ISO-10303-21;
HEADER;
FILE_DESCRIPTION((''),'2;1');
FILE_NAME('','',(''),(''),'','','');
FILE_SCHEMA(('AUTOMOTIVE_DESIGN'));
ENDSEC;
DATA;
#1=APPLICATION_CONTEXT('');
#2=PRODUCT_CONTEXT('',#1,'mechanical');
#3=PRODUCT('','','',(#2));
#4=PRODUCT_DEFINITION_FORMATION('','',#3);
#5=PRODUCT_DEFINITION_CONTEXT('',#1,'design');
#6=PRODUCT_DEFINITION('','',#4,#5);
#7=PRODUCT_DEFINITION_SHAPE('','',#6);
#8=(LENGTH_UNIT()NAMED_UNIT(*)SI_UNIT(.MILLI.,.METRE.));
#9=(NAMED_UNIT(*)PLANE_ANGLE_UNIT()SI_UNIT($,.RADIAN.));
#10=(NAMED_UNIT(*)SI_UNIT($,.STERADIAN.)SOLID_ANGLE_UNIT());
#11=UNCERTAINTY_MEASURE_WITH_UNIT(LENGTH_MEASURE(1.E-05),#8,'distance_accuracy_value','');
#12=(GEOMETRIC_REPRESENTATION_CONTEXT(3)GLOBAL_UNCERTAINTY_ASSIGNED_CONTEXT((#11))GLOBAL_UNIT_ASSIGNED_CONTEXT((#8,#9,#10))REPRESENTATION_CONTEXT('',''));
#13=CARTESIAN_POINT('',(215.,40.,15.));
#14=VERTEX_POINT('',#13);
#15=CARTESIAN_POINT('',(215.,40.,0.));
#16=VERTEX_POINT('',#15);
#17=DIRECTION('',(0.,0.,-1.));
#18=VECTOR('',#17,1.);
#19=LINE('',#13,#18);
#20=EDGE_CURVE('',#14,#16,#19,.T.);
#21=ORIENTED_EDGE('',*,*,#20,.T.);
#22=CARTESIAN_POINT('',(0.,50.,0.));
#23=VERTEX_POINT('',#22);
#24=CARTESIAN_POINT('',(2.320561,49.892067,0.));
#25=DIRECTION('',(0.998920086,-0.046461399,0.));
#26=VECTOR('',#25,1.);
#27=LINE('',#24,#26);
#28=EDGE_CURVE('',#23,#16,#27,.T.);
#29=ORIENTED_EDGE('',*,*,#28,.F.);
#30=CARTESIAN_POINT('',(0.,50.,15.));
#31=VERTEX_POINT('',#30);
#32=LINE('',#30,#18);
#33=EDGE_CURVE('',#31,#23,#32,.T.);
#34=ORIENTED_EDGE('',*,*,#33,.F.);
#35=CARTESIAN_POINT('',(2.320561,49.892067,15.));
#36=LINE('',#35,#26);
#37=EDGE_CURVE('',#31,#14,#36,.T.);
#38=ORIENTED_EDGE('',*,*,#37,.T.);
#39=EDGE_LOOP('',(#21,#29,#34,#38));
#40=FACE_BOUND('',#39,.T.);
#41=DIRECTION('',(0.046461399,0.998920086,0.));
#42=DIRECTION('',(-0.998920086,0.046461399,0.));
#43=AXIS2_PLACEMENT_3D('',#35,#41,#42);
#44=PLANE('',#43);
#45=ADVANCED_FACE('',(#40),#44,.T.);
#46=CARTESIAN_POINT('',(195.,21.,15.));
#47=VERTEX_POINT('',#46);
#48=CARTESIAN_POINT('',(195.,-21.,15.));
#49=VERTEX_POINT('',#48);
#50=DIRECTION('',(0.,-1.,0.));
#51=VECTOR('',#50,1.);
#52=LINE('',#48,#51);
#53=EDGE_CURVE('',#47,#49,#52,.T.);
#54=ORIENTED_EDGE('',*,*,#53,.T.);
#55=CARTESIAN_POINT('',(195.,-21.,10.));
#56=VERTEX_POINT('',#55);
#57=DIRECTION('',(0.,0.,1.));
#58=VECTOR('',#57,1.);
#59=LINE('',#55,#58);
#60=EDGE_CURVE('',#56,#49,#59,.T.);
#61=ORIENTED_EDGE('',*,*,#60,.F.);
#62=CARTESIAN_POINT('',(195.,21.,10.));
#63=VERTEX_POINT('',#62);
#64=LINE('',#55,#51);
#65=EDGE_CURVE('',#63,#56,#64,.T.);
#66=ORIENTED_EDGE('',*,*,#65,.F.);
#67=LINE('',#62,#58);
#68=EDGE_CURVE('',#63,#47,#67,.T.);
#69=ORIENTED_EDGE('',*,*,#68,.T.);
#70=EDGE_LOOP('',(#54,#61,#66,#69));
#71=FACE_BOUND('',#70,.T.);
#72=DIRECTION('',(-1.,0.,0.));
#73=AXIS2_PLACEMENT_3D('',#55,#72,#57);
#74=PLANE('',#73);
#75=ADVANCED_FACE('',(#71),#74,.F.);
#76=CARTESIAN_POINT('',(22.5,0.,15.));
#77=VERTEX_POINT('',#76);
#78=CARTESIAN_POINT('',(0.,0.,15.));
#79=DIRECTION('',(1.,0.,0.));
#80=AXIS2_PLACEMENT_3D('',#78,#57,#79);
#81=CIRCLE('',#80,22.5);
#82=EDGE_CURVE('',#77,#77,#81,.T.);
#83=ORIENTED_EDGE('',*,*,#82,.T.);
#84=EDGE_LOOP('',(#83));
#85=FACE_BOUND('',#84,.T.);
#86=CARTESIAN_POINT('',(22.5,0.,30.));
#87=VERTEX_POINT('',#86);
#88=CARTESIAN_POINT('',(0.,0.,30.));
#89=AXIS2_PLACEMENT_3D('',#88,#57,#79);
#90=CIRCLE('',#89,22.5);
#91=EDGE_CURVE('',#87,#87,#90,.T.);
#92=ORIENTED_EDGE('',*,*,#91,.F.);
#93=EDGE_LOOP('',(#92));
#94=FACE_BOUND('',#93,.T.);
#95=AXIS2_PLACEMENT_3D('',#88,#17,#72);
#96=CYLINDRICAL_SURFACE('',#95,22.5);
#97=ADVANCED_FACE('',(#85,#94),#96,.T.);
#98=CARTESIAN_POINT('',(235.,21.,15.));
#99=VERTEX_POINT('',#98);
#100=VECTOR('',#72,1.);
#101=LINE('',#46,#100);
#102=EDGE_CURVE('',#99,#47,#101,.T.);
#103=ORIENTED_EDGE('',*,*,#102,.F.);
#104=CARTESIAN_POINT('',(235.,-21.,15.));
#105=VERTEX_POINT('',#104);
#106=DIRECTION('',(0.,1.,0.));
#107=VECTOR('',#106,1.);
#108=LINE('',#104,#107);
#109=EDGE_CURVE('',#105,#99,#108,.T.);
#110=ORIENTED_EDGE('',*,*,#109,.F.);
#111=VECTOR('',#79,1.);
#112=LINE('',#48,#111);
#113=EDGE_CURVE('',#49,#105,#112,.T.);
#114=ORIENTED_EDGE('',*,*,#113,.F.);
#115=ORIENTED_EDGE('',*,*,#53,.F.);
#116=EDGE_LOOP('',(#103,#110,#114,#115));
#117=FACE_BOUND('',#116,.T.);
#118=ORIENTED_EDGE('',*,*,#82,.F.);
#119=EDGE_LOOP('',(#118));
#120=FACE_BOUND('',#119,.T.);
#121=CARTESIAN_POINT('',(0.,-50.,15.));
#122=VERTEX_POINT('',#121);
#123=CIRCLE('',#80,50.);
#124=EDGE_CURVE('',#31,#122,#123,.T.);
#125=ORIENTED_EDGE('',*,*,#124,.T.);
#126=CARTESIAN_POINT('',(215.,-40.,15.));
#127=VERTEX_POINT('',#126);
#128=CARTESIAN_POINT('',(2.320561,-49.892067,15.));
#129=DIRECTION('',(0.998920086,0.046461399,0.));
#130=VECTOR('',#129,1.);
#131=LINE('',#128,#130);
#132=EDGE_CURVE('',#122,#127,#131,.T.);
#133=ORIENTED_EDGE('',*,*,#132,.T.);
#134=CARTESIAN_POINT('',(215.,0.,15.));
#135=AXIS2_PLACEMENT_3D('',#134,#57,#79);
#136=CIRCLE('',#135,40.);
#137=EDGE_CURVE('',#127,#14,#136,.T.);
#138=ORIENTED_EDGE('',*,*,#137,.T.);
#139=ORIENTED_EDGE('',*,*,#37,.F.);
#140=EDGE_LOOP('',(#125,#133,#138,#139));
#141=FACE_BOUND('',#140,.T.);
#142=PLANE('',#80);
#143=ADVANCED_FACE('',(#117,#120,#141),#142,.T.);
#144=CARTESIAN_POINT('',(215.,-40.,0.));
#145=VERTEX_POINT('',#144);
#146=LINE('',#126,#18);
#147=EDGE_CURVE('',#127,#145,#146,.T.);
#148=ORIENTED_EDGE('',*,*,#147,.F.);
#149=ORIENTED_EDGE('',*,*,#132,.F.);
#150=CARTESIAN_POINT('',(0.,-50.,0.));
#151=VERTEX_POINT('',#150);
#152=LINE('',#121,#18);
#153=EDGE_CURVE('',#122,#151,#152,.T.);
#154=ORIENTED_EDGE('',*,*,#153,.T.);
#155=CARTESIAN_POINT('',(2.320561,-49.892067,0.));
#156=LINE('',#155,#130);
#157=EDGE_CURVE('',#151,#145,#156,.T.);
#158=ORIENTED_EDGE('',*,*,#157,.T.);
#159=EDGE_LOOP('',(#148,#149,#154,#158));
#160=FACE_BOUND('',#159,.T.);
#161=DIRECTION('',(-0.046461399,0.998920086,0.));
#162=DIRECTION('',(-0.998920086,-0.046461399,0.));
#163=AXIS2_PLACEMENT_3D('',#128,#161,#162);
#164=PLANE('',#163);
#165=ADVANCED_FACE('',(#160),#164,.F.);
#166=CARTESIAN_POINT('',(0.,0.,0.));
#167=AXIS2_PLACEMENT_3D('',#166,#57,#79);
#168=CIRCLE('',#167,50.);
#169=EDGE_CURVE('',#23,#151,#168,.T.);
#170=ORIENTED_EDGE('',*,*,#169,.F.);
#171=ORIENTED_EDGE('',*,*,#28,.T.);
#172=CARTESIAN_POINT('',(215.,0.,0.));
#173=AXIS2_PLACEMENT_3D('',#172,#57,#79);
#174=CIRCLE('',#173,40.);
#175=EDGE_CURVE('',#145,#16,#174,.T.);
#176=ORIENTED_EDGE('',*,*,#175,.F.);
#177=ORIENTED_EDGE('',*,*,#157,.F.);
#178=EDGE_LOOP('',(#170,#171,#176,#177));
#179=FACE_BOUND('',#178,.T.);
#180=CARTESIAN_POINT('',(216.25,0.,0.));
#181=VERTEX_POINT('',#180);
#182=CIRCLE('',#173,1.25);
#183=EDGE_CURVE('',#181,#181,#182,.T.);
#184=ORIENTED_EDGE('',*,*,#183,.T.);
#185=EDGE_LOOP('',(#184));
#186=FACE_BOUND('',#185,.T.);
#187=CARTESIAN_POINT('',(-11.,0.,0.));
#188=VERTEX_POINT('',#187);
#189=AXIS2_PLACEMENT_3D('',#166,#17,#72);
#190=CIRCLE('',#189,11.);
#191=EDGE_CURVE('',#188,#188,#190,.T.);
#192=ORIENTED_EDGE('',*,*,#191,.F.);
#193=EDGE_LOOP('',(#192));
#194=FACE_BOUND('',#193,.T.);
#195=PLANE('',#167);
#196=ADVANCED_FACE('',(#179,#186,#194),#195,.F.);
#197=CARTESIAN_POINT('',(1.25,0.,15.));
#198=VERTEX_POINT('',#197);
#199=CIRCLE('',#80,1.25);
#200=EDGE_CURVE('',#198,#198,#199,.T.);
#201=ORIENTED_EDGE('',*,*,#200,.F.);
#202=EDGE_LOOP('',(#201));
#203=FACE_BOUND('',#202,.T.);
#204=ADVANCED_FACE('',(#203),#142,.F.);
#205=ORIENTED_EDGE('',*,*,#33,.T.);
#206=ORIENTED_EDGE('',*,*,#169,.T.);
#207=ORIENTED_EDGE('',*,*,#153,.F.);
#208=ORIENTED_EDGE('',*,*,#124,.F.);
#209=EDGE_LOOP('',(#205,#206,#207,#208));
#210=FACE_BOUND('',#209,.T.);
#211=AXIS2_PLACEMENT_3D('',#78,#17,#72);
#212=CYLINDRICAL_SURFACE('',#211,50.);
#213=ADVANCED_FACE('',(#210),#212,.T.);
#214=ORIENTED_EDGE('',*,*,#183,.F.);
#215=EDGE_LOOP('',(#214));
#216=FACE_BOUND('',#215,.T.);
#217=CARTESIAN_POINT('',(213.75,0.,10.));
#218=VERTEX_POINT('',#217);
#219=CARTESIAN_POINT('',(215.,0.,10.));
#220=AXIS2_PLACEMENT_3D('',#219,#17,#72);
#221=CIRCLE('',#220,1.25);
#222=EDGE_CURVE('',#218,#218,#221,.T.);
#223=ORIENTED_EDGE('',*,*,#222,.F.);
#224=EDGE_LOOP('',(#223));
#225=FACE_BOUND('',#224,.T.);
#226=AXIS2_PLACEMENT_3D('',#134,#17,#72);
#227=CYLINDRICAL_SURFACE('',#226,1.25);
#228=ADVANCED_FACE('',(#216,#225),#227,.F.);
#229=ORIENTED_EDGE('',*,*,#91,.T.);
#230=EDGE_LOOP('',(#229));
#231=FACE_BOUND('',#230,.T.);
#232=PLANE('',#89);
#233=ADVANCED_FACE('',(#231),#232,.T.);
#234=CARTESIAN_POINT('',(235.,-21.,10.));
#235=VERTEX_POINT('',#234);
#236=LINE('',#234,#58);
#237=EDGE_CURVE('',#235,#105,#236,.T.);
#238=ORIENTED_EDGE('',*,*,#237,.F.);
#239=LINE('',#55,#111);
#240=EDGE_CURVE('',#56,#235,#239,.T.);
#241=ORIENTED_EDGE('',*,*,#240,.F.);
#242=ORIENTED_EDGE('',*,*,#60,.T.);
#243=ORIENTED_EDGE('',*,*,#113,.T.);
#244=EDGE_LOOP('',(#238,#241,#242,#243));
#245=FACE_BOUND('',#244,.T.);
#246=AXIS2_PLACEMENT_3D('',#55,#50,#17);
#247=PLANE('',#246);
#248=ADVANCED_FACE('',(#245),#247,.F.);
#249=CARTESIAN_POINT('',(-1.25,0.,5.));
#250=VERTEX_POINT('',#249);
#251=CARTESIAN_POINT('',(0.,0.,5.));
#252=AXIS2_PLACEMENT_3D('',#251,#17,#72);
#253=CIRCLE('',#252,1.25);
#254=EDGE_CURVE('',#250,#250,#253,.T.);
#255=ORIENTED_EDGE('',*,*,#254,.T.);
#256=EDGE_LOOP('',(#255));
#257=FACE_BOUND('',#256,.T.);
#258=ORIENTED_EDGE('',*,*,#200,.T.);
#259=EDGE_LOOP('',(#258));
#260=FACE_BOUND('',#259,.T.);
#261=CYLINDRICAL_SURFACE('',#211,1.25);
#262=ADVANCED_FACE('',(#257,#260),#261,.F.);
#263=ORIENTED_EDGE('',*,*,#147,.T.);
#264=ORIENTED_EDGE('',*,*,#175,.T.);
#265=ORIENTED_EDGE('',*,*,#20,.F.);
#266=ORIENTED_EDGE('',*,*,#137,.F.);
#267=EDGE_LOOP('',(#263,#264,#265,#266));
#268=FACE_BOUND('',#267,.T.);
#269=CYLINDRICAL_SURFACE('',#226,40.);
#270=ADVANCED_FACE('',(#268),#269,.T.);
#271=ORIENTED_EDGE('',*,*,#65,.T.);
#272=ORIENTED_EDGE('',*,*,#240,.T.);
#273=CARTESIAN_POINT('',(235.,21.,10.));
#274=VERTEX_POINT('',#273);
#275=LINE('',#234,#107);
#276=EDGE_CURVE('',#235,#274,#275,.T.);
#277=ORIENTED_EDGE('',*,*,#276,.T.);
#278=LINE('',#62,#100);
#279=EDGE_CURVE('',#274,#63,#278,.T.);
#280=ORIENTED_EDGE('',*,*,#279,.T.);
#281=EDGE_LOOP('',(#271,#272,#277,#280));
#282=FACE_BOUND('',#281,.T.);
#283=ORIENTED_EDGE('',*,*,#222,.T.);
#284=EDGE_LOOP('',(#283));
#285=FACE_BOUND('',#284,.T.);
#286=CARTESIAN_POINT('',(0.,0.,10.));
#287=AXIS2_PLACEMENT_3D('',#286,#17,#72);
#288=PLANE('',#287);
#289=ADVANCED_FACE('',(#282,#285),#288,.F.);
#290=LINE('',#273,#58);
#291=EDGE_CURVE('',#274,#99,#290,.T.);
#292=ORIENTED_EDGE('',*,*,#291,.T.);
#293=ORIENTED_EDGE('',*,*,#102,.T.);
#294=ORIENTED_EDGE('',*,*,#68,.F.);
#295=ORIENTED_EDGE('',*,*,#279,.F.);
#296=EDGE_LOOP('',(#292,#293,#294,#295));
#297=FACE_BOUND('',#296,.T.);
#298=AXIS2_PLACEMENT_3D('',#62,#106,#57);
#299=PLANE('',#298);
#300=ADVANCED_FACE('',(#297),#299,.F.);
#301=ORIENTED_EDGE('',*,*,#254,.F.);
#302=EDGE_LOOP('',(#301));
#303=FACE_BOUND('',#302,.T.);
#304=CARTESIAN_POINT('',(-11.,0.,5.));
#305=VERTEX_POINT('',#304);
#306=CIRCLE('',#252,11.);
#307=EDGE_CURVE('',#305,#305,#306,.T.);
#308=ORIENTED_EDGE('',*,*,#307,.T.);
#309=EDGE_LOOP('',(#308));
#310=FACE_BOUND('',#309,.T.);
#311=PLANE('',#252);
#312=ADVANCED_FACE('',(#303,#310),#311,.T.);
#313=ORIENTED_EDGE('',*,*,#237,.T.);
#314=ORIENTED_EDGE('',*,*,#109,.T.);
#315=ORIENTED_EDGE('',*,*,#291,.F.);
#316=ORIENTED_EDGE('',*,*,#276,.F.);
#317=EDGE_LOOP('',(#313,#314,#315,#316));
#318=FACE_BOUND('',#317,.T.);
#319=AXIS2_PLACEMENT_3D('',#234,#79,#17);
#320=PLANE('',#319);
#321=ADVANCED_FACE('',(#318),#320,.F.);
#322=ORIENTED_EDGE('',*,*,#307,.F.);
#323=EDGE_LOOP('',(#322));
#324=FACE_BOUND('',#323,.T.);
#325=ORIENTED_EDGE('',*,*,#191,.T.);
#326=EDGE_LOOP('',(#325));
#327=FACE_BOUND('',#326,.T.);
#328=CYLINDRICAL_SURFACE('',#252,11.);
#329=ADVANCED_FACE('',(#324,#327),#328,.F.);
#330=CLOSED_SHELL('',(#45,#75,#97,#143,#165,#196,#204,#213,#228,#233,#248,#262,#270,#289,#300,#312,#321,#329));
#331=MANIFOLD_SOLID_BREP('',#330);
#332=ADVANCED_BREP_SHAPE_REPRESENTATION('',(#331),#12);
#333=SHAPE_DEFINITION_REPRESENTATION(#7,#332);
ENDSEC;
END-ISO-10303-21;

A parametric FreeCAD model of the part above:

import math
import FreeCAD as App
import Part
import Sketcher

V = App.Vector
Q = App.Units.Quantity

doc = App.newDocument("Part")
body = doc.addObject("PartDesign::Body", "Body")

# Sketch on XY plane
sketch1 = doc.addObject("Sketcher::SketchObject", "Sketch")
body.addObject(sketch1)
sketch1.AttachmentSupport = (doc.XY_Plane, [""])
sketch1.MapMode = "FlatFace"
sketch1.addGeometry(Part.LineSegment(V(0, -50, 0), V(215, -40, 0)), False)
sketch1.addGeometry(Part.ArcOfCircle(Part.Circle(V(215, 0, 0), V(0, 0, 1), 40), math.radians(-90), math.radians(90)), False)
sketch1.addGeometry(Part.LineSegment(V(215, 40, 0), V(0, 50, 0)), False)
sketch1.addGeometry(Part.ArcOfCircle(Part.Circle(V(0, 0, 0), V(0, 0, 1), 50), math.radians(90), math.radians(270)), False)
sketch1.addGeometry(Part.Circle(V(0, 0, 0), V(0, 0, 1), 1.2), False)
sketch1.addGeometry(Part.Circle(V(215, 0, 0), V(0, 0, 1), 1.2), False)
sketch1.addConstraint(Sketcher.Constraint("Coincident", 0, 2, 1, 1))
sketch1.addConstraint(Sketcher.Constraint("Coincident", 1, 2, 2, 1))
sketch1.addConstraint(Sketcher.Constraint("Coincident", 2, 2, 3, 1))
sketch1.addConstraint(Sketcher.Constraint("Coincident", 3, 2, 0, 1))
sketch1.addConstraint(Sketcher.Constraint("Coincident", 3, 3, -1, 1))
sketch1.addConstraint(Sketcher.Constraint("Coincident", 4, 3, -1, 1))
sketch1.addConstraint(Sketcher.Constraint("Coincident", 5, 3, 1, 3))
sketch1.addConstraint(Sketcher.Constraint("Equal", 4, 5))
sketch1.addConstraint(Sketcher.Constraint("Symmetric", 0, 2, 1, 2, -1))
sketch1.addConstraint(Sketcher.Constraint("PointOnObject", 2, 2, -2))
sketch1.addConstraint(Sketcher.Constraint("PointOnObject", 3, 2, -2))
sketch1.addConstraint(Sketcher.Constraint("Vertical", 5, 3, 0, 2))
sketch1.addConstraint(Sketcher.Constraint("Radius", 1, Q("40 mm")))
sketch1.addConstraint(Sketcher.Constraint("Radius", 3, Q("50 mm")))
sketch1.addConstraint(Sketcher.Constraint("Diameter", 4, Q("2.5 mm")))
sketch1.addConstraint(Sketcher.Constraint("DistanceX", -1, 1, 1, 3, Q("215 mm")))
pad1 = doc.addObject("PartDesign::Pad", "Pad")
body.addObject(pad1)
pad1.Profile = sketch1
pad1.Length = 15

# Sketch on XY plane
sketch2 = doc.addObject("Sketcher::SketchObject", "Sketch001")
body.addObject(sketch2)
sketch2.AttachmentSupport = (doc.XY_Plane, [""])
sketch2.MapMode = "FlatFace"
sketch2.AttachmentOffset = App.Placement(V(0, 0, 15), App.Rotation())
sketch2.addGeometry(Part.Circle(V(0, 0, 0), V(0, 0, 1), 22), False)
sketch2.addConstraint(Sketcher.Constraint("Coincident", 0, 3, -1, 1))
sketch2.addConstraint(Sketcher.Constraint("Diameter", 0, Q("45 mm")))
pad2 = doc.addObject("PartDesign::Pad", "Pad001")
body.addObject(pad2)
pad2.Profile = sketch2
pad2.Length = 15

# Sketch on XY plane
sketch3 = doc.addObject("Sketcher::SketchObject", "Sketch002")
body.addObject(sketch3)
sketch3.AttachmentSupport = (doc.XY_Plane, [""])
sketch3.MapMode = "FlatFace"
sketch3.addGeometry(Part.Circle(V(0, 0, 0), V(0, 0, 1), 11), False)
sketch3.addConstraint(Sketcher.Constraint("Coincident", 0, 3, -1, 1))
sketch3.addConstraint(Sketcher.Constraint("Diameter", 0, Q("22 mm")))
pocket1 = doc.addObject("PartDesign::Pocket", "Pocket")
body.addObject(pocket1)
pocket1.Profile = sketch3
pocket1.Length = 5
pocket1.Reversed = True

# Sketch on XY plane
sketch4 = doc.addObject("Sketcher::SketchObject", "Sketch003")
body.addObject(sketch4)
sketch4.AttachmentSupport = (doc.XY_Plane, [""])
sketch4.MapMode = "FlatFace"
sketch4.AttachmentOffset = App.Placement(V(0, 0, 15), App.Rotation())
sketch4.addGeometry(Part.LineSegment(V(195, 21, 0), V(195, -21, 0)), False)
sketch4.addGeometry(Part.LineSegment(V(195, -21, 0), V(235, -21, 0)), False)
sketch4.addGeometry(Part.LineSegment(V(235, -21, 0), V(235, 21, 0)), False)
sketch4.addGeometry(Part.LineSegment(V(235, 21, 0), V(195, 21, 0)), False)
sketch4.addConstraint(Sketcher.Constraint("Coincident", 0, 2, 1, 1))
sketch4.addConstraint(Sketcher.Constraint("Coincident", 1, 2, 2, 1))
sketch4.addConstraint(Sketcher.Constraint("Coincident", 2, 2, 3, 1))
sketch4.addConstraint(Sketcher.Constraint("Coincident", 3, 2, 0, 1))
sketch4.addConstraint(Sketcher.Constraint("Vertical", 0))
sketch4.addConstraint(Sketcher.Constraint("Horizontal", 1))
sketch4.addConstraint(Sketcher.Constraint("Vertical", 2))
sketch4.addConstraint(Sketcher.Constraint("Horizontal", 3))
sketch4.addConstraint(Sketcher.Constraint("DistanceX", 1, 1, 1, 2, Q("40 mm")))
sketch4.addConstraint(Sketcher.Constraint("DistanceY", 0, 2, 0, 1, Q("42 mm")))
sketch4.addConstraint(Sketcher.Constraint("DistanceX", -1, 1, 0, 2, Q("195 mm")))
sketch4.addConstraint(Sketcher.Constraint("DistanceY", 0, 2, -1, 1, Q("21 mm")))
pocket2 = doc.addObject("PartDesign::Pocket", "Pocket001")
body.addObject(pocket2)
pocket2.Profile = sketch4
pocket2.Length = 5

doc.recompute()
